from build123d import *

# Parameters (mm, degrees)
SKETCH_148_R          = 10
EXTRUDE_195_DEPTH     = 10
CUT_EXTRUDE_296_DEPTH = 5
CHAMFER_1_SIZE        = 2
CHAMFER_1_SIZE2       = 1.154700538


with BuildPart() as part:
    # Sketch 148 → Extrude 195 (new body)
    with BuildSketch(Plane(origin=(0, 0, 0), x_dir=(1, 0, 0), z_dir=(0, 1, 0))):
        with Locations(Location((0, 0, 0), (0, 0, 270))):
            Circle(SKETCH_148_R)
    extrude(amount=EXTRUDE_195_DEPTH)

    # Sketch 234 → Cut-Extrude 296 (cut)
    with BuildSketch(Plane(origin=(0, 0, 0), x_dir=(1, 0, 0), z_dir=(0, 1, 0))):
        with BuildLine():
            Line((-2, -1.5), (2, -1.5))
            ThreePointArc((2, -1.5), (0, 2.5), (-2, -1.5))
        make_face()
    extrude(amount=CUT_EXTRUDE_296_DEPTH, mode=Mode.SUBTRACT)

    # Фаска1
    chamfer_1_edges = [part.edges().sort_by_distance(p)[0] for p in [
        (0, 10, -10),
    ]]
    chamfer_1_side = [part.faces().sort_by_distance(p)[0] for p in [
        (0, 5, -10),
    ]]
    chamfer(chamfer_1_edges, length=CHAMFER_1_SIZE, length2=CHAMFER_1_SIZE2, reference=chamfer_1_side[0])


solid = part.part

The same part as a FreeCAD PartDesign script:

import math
import FreeCAD as App
import Part
import Sketcher
from FreeCAD import Vector


def edges_at(feature, points):
    """Names of the edges that pass closest to the given points."""
    edges = feature.Shape.Edges
    near = lambda p: min(range(len(edges)), key=lambda i: edges[i].distToShape(Part.Vertex(*p))[0])
    return sorted({f"Edge{near(p) + 1}" for p in points})

doc = App.newDocument("Part")
body = doc.addObject("PartDesign::Body", "Body")

# Sketch on XZ plane
sketch1 = body.newObject("Sketcher::SketchObject", "Sketch")
sketch1.AttachmentSupport = (doc.getObject("XZ_Plane"), [""])
sketch1.MapMode = "FlatFace"
sketch1.addGeometry(Part.Circle(Vector(0, 0, 0), Vector(0, 0, 1), 10), False)
sketch1.addConstraint([
    Sketcher.Constraint("Coincident", 0, 3, -1, 1),
    Sketcher.Constraint("Diameter", 0, 20.0),
])
pad1 = body.newObject("PartDesign::Pad", "Pad")
pad1.Profile = sketch1
pad1.Length = 10
pad1.Reversed = True

# Sketch on XZ plane
sketch2 = body.newObject("Sketcher::SketchObject", "Sketch001")
sketch2.AttachmentSupport = (doc.getObject("XZ_Plane"), [""])
sketch2.MapMode = "FlatFace"
sketch2.addGeometry([
    Part.LineSegment(Vector(-2, 1.5, 0), Vector(2, 1.5, 0)),
    Part.ArcOfCircle(Part.Circle(Vector(0, 0, 0), Vector(0, 0, 1), 2.5), math.radians(143), math.radians(397)),
], False)
sketch2.addConstraint([
    Sketcher.Constraint("Coincident", 0, 1, 1, 1),
    Sketcher.Constraint("Coincident", 1, 2, 0, 2),
    Sketcher.Constraint("Horizontal", 0),
    Sketcher.Constraint("Coincident", 1, 3, -1, 1),
    Sketcher.Constraint("Radius", 1, 2.5),
    Sketcher.Constraint("DistanceX", 0, 1, 0, 2, 4.0),
])
pocket1 = body.newObject("PartDesign::Pocket", "Pocket")
pocket1.Profile = sketch2
pocket1.Length = 5
doc.recompute()

chamfer = body.newObject("PartDesign::Chamfer", "Chamfer")
chamfer.Base = (pocket1, edges_at(pocket1, [(0, 10, -10)]))
chamfer.ChamferType = "Two distances"
chamfer.Size = 2
chamfer.Size2 = 1.154701

doc.recompute()
